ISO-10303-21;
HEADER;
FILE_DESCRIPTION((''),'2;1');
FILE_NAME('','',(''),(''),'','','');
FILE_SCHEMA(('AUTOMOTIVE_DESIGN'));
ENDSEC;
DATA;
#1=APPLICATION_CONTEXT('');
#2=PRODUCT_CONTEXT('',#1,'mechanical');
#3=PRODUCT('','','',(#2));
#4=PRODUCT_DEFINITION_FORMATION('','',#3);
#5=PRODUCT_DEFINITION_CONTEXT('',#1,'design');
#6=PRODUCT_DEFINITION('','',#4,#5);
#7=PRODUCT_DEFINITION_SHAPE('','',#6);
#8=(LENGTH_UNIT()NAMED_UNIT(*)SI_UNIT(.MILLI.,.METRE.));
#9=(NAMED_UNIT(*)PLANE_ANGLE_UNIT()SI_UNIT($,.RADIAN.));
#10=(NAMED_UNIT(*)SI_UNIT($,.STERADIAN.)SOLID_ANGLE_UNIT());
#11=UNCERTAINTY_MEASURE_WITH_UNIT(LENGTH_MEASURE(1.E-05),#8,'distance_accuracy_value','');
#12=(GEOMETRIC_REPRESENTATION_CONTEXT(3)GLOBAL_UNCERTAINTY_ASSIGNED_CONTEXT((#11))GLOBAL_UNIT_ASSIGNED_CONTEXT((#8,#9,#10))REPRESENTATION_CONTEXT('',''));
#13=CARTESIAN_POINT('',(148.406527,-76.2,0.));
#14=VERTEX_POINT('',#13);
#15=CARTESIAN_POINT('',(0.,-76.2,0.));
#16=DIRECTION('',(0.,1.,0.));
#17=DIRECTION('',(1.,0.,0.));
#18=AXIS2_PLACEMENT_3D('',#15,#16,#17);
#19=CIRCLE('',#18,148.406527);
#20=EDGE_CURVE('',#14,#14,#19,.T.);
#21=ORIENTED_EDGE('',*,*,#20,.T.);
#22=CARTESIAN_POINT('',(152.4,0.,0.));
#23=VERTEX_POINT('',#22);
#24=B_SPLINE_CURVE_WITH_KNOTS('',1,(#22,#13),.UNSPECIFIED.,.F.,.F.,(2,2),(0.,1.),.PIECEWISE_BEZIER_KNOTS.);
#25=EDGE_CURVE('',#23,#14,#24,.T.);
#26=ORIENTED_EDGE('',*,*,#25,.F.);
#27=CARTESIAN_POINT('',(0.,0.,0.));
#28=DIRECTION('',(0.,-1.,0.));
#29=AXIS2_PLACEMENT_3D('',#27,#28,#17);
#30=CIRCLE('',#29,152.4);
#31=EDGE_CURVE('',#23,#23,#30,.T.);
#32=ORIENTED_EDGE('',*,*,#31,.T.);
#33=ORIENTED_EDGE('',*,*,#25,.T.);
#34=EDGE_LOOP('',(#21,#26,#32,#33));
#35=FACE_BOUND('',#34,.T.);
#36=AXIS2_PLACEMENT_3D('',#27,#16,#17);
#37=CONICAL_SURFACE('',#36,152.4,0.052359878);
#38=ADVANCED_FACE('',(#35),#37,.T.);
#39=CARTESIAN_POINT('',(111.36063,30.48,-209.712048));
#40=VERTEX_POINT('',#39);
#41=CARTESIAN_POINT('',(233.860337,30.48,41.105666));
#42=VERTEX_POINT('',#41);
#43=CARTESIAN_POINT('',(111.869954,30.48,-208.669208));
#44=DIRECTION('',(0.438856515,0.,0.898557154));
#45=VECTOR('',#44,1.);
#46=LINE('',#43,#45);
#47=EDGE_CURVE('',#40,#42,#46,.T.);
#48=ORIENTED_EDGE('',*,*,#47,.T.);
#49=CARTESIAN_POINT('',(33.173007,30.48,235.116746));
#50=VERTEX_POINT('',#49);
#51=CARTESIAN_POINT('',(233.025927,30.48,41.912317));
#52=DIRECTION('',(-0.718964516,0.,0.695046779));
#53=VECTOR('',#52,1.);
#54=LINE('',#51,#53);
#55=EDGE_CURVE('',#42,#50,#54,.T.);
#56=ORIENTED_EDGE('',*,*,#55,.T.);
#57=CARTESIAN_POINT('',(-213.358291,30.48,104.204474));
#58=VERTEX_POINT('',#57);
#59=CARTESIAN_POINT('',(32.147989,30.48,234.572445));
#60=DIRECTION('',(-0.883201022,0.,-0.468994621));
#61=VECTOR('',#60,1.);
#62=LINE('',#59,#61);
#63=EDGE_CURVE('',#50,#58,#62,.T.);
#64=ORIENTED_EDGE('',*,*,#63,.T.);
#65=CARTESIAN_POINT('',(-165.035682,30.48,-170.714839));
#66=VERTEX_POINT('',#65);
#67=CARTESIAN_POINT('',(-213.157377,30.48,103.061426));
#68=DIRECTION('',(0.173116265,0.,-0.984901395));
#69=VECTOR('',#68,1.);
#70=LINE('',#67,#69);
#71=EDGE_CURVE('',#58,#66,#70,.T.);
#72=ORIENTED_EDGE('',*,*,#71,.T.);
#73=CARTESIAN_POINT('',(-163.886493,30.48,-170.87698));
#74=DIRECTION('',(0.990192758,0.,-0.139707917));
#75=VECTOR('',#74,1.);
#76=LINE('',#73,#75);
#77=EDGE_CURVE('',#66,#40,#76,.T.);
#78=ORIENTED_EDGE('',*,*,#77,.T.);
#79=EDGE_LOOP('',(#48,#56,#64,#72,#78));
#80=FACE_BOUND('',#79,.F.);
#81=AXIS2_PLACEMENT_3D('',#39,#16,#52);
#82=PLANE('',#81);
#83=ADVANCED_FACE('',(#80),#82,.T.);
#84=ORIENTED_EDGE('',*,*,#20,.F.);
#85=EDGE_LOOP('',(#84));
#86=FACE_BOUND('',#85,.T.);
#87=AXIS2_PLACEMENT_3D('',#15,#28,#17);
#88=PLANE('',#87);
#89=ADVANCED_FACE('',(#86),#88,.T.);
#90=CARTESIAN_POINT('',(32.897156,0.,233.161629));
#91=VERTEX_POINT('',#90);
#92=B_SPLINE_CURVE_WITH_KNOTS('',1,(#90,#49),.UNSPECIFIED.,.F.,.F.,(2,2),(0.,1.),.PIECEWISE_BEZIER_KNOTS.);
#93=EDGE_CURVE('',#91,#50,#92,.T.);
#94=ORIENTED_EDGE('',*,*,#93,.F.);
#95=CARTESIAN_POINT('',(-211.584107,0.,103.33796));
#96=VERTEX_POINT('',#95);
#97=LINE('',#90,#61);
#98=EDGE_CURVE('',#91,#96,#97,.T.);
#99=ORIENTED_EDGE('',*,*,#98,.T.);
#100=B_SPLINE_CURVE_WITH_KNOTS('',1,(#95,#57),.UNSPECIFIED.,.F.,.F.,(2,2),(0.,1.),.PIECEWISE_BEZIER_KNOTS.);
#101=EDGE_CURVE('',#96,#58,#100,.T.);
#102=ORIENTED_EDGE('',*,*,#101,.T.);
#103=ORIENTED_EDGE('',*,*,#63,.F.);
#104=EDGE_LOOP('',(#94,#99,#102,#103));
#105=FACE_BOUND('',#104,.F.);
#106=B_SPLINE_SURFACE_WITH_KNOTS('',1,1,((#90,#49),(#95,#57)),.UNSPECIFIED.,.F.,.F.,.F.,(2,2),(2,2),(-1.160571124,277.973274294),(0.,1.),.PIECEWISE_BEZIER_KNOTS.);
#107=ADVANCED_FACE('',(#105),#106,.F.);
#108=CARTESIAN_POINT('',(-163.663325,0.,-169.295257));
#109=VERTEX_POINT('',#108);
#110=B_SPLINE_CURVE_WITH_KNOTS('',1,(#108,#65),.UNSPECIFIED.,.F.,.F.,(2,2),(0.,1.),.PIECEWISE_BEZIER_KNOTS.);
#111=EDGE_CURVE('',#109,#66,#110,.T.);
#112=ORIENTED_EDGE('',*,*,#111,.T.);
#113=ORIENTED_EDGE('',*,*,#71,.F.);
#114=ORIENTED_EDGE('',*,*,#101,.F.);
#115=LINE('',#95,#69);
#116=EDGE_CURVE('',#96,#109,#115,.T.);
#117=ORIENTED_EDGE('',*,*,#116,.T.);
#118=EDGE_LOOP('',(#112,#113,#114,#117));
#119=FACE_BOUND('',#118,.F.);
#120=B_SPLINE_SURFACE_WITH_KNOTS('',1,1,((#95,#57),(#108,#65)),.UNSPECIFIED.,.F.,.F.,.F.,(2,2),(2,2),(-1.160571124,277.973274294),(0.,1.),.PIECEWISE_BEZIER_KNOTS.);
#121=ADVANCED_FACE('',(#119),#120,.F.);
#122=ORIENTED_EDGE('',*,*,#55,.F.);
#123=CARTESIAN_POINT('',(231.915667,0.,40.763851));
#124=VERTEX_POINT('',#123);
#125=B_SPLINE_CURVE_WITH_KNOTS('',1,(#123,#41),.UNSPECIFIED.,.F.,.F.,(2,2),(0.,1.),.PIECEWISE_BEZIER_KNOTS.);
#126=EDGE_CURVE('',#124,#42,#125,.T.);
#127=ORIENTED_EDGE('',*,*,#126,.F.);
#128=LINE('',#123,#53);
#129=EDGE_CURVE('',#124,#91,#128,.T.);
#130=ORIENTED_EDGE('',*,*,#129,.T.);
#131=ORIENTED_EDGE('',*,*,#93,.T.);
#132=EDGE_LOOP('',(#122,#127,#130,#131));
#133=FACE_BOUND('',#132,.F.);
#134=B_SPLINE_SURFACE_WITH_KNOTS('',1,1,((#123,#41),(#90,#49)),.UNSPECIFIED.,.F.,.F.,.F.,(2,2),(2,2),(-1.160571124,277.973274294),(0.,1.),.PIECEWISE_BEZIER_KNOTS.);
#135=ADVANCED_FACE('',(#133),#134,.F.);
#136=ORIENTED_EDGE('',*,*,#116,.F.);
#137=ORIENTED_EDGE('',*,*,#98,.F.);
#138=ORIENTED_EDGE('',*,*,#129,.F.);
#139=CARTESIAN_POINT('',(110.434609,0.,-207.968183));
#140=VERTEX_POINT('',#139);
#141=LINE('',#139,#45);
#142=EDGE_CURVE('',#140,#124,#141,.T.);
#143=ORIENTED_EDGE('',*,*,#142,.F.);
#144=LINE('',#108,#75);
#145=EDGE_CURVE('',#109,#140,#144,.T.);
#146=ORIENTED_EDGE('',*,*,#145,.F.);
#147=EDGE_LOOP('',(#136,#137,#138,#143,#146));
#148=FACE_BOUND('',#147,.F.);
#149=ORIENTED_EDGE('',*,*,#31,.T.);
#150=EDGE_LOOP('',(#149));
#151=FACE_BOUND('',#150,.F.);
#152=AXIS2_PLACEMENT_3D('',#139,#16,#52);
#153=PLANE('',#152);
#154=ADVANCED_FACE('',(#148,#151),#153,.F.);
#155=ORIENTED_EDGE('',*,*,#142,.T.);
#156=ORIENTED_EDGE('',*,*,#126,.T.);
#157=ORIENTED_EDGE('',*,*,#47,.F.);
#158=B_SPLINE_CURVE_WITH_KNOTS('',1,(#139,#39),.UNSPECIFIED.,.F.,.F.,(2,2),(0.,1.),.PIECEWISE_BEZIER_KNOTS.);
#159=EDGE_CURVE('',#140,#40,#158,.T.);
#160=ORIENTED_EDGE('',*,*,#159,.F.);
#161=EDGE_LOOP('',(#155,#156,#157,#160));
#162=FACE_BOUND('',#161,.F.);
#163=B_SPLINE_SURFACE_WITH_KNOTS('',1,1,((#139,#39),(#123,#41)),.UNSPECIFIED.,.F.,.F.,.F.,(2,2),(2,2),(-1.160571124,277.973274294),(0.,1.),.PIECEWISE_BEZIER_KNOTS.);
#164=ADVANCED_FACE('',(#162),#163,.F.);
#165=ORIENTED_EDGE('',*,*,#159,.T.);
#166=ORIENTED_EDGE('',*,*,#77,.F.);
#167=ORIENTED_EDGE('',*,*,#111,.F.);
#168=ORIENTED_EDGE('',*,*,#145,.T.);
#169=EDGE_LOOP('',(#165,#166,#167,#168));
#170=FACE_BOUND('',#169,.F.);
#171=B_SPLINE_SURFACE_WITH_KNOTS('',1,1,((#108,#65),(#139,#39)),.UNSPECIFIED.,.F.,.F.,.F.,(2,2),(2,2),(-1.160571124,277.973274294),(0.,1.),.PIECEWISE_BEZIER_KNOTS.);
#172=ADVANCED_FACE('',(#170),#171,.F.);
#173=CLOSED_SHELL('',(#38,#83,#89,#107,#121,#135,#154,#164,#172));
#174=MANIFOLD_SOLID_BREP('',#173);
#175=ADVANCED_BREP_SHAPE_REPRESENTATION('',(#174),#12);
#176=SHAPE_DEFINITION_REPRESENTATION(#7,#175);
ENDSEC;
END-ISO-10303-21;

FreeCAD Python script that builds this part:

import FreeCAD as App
import Part
import Sketcher

V = App.Vector
Q = App.Units.Quantity

doc = App.newDocument("Part")
params = doc.addObject("Spreadsheet::Sheet", "Params")
for row, (alias, value) in enumerate([
    ("pad1_length", "1.2 in"),
    ("pad1_taper", "3 deg"),
    ("sketch2_diameter", "12 in"),
    ("pad2_length", "3 in"),
    ("pad2_taper", "-3 deg"),
], start=1):
    params.set(f"A{row}", alias)
    params.set(f"B{row}", "=" + value)
    params.setAlias(f"B{row}", alias)

body = doc.addObject("PartDesign::Body", "Body")

sketch1 = doc.addObject("Sketcher::SketchObject", "Sketch")
body.addObject(sketch1)
sketch1.AttachmentSupport = (doc.XZ_Plane, [""])
sketch1.MapMode = "FlatFace"
sketch1.addGeometry(Part.LineSegment(V(110, -208, 0), V(232, 41, 0)), False)
sketch1.addGeometry(Part.LineSegment(V(232, 41, 0), V(33, 233, 0)), False)
sketch1.addGeometry(Part.LineSegment(V(33, 233, 0), V(-212, 103, 0)), False)
sketch1.addGeometry(Part.LineSegment(V(-212, 103, 0), V(-164, -169, 0)), False)
sketch1.addGeometry(Part.LineSegment(V(-164, -169, 0), V(110, -208, 0)), False)
sketch1.addConstraint(Sketcher.Constraint("Coincident", 0, 2, 1, 1))
sketch1.addConstraint(Sketcher.Constraint("Coincident", 1, 2, 2, 1))
sketch1.addConstraint(Sketcher.Constraint("Coincident", 2, 2, 3, 1))
sketch1.addConstraint(Sketcher.Constraint("Coincident", 3, 2, 4, 1))
sketch1.addConstraint(Sketcher.Constraint("Coincident", 4, 2, 0, 1))
sketch1.addConstraint(Sketcher.Constraint("Equal", 0, 1))
sketch1.addConstraint(Sketcher.Constraint("Equal", 1, 2))
sketch1.addConstraint(Sketcher.Constraint("Equal", 2, 3))
sketch1.addConstraint(Sketcher.Constraint("Equal", 3, 4))
sketch1.addConstraint(Sketcher.Constraint("DistanceY", -1, 1, 0, 2, 40.763851))
sketch1.addConstraint(Sketcher.Constraint("DistanceY", -1, 1, 1, 2, 233.161629))
sketch1.addConstraint(Sketcher.Constraint("DistanceY", -1, 1, 2, 2, 103.33796))
sketch1.addConstraint(Sketcher.Constraint("DistanceX", -1, 1, 4, 2, 110.434609))
sketch1.addConstraint(Sketcher.Constraint("DistanceX", 1, 2, 0, 2, 199.018511))
sketch1.addConstraint(Sketcher.Constraint("DistanceX", 2, 2, 3, 2, 47.920781))
pad1 = doc.addObject("PartDesign::Pad", "Pad")
body.addObject(pad1)
pad1.Profile = sketch1
pad1.setExpression("Length", "Params.pad1_length")
pad1.Reversed = True
pad1.setExpression("TaperAngle", "Params.pad1_taper")

sketch2 = doc.addObject("Sketcher::SketchObject", "Sketch001")
body.addObject(sketch2)
sketch2.AttachmentSupport = (doc.XZ_Plane, [""])
sketch2.MapMode = "FlatFace"
sketch2.addGeometry(Part.Circle(V(0, 0, 0), V(0, 0, 1), 152), False)
sketch2.addConstraint(Sketcher.Constraint("Coincident", 0, 3, -1, 1))
sketch2.addConstraint(Sketcher.Constraint("Diameter", 0, Q("12 in")))
sketch2.setExpression("Constraints[1]", "Params.sketch2_diameter")
pad2 = doc.addObject("PartDesign::Pad", "Pad001")
body.addObject(pad2)
pad2.Profile = sketch2
pad2.setExpression("Length", "Params.pad2_length")
pad2.setExpression("TaperAngle", "Params.pad2_taper")

doc.recompute()
